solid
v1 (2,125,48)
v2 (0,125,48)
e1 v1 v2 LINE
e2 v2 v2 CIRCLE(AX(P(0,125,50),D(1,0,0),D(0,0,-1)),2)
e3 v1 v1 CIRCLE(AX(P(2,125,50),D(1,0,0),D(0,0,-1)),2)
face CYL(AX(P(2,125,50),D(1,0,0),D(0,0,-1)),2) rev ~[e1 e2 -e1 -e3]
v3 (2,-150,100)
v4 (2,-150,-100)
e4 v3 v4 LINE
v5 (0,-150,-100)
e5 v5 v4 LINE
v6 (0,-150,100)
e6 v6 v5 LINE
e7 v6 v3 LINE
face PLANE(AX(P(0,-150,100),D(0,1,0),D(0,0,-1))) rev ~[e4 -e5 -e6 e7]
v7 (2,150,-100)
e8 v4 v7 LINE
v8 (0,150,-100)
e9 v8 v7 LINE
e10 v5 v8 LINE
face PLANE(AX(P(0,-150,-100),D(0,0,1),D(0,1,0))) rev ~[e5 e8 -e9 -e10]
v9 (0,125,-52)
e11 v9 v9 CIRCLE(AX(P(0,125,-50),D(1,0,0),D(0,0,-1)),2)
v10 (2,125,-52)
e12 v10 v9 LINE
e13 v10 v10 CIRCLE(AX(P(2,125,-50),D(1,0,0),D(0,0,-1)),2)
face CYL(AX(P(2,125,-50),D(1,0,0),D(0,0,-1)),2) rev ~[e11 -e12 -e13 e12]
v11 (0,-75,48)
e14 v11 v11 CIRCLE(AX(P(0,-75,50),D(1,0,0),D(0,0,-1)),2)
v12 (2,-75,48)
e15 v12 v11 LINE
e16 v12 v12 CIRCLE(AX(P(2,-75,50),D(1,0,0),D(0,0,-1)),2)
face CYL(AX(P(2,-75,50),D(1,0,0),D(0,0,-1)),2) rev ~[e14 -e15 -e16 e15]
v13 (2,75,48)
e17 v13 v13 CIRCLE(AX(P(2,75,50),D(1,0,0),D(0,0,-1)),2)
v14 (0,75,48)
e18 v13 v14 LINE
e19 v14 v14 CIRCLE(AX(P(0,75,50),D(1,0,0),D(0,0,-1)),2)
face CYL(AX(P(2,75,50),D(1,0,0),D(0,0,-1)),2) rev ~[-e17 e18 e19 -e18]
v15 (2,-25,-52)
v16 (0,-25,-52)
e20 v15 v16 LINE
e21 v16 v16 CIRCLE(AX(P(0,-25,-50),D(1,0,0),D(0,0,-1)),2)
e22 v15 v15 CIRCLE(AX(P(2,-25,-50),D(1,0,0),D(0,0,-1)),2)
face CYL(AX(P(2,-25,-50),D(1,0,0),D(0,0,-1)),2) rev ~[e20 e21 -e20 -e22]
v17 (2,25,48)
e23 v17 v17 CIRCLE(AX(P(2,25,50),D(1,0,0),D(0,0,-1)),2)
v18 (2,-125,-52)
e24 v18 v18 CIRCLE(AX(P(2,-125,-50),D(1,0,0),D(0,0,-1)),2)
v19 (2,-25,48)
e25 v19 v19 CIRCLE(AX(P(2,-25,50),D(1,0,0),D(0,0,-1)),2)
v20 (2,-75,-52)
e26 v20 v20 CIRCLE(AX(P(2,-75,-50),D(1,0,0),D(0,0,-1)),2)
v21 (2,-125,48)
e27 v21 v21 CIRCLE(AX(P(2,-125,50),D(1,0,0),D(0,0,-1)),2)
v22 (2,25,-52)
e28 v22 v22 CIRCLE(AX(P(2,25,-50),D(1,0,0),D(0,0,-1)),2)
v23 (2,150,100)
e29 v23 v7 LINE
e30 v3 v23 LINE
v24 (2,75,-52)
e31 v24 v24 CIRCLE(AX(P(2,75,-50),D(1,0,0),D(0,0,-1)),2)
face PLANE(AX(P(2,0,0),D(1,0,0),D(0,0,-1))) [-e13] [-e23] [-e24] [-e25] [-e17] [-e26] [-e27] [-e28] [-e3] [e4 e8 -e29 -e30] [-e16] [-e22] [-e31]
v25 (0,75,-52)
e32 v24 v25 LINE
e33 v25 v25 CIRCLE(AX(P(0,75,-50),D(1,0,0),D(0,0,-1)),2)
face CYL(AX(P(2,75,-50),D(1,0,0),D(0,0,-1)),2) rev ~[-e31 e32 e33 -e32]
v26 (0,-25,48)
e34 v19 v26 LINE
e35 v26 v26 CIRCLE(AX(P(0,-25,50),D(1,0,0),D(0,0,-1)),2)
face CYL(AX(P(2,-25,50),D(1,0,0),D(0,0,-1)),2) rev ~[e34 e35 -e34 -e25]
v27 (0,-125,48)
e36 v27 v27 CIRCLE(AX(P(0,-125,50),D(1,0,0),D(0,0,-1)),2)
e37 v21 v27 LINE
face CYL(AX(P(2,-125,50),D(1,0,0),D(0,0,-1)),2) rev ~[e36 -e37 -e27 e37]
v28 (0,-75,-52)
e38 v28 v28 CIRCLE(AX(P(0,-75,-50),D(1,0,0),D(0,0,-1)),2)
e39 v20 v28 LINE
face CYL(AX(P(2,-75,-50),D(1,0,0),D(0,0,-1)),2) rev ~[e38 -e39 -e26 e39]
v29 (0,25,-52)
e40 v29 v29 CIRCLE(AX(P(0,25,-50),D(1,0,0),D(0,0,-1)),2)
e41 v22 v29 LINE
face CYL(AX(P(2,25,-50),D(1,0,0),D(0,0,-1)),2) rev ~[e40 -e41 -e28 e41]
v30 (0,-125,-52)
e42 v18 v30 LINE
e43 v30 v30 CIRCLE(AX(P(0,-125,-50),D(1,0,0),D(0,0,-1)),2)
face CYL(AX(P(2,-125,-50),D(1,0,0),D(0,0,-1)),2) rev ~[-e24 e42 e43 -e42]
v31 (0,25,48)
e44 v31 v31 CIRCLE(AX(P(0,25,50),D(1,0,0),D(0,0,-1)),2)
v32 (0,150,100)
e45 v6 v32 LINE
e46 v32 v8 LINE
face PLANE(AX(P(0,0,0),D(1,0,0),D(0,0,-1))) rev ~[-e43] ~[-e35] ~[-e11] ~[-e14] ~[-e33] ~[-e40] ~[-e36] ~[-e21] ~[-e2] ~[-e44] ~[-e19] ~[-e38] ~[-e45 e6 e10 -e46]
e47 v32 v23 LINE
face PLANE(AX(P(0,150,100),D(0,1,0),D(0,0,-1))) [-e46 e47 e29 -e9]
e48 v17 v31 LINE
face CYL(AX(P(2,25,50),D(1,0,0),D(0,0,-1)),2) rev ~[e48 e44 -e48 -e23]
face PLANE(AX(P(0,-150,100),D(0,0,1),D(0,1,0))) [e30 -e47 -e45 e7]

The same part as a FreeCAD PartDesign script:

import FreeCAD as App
import Part
import Sketcher
Q = App.Units.Quantity


def add_polygon(sketch, points):
    """Adds a closed chain of lines whose ends are joined by coincident constraints."""
    first, n = sketch.GeometryCount, len(points)
    for a, b in zip(points, points[1:] + points[:1]):
        sketch.addGeometry(Part.LineSegment(App.Vector(*a, 0), App.Vector(*b, 0)), False)
    for i in range(n):
        sketch.addConstraint(Sketcher.Constraint("Coincident", first + i, 2, first + (i + 1) % n, 1))

doc = App.newDocument("Part")
body = doc.addObject("PartDesign::Body", "Body")

sketch1 = doc.addObject("Sketcher::SketchObject", "Sketch")
body.addObject(sketch1)
sketch1.AttachmentSupport = (doc.YZ_Plane, [""])
sketch1.MapMode = "FlatFace"
add_polygon(sketch1, [(150, 100), (-150, 100), (-150, -100), (150, -100)])
sketch1.addConstraint(Sketcher.Constraint("Horizontal", 0))
sketch1.addConstraint(Sketcher.Constraint("Vertical", 1))
sketch1.addConstraint(Sketcher.Constraint("Horizontal", 2))
sketch1.addConstraint(Sketcher.Constraint("Vertical", 3))
sketch1.addConstraint(Sketcher.Constraint("Symmetric", 0, 2, 2, 2, -1, 1))
sketch1.addConstraint(Sketcher.Constraint("DistanceX", 0, 2, 0, 1, Q("300 mm")))
sketch1.addConstraint(Sketcher.Constraint("DistanceY", 1, 2, 1, 1, Q("200 mm")))
pad1 = doc.addObject("PartDesign::Pad", "Pad")
body.addObject(pad1)
pad1.Profile = sketch1
pad1.Length = 2

sketch2 = doc.addObject("Sketcher::SketchObject", "Sketch001")
body.addObject(sketch2)
sketch2.AttachmentSupport = (doc.YZ_Plane, [""])
sketch2.MapMode = "FlatFace"
sketch2.AttachmentOffset = App.Placement(App.Vector(0, 0, 2), App.Rotation())
sketch2.addGeometry(Part.Circle(App.Vector(125, 50, 0), App.Vector(0, 0, 1), 2), False)
sketch2.addGeometry(Part.Circle(App.Vector(125, -50, 0), App.Vector(0, 0, 1), 2), False)
sketch2.addGeometry(Part.Circle(App.Vector(-125, -50, 0), App.Vector(0, 0, 1), 2), False)
sketch2.addGeometry(Part.Circle(App.Vector(-125, 50, 0), App.Vector(0, 0, 1), 2), False)
sketch2.addGeometry(Part.Circle(App.Vector(75, 50, 0), App.Vector(0, 0, 1), 2), False)
sketch2.addGeometry(Part.Circle(App.Vector(25, 50, 0), App.Vector(0, 0, 1), 2), False)
sketch2.addGeometry(Part.Circle(App.Vector(25, -50, 0), App.Vector(0, 0, 1), 2), False)
sketch2.addGeometry(Part.Circle(App.Vector(75, -50, 0), App.Vector(0, 0, 1), 2), False)
sketch2.addGeometry(Part.Circle(App.Vector(-25, 50, 0), App.Vector(0, 0, 1), 2), False)
sketch2.addGeometry(Part.Circle(App.Vector(-25, -50, 0), App.Vector(0, 0, 1), 2), False)
sketch2.addGeometry(Part.Circle(App.Vector(-75, -50, 0), App.Vector(0, 0, 1), 2), False)
sketch2.addGeometry(Part.Circle(App.Vector(-75, 50, 0), App.Vector(0, 0, 1), 2), False)
sketch2.addConstraint(Sketcher.Constraint("Equal", 0, 1))
sketch2.addConstraint(Sketcher.Constraint("Equal", 1, 2))
sketch2.addConstraint(Sketcher.Constraint("Equal", 2, 3))
sketch2.addConstraint(Sketcher.Constraint("Equal", 3, 4))
sketch2.addConstraint(Sketcher.Constraint("Equal", 4, 5))
sketch2.addConstraint(Sketcher.Constraint("Equal", 5, 6))
sketch2.addConstraint(Sketcher.Constraint("Equal", 6, 7))
sketch2.addConstraint(Sketcher.Constraint("Equal", 7, 8))
sketch2.addConstraint(Sketcher.Constraint("Equal", 8, 9))
sketch2.addConstraint(Sketcher.Constraint("Equal", 9, 10))
sketch2.addConstraint(Sketcher.Constraint("Equal", 10, 11))
sketch2.addConstraint(Sketcher.Constraint("Symmetric", 0, 3, 2, 3, -1, 1))
sketch2.addConstraint(Sketcher.Constraint("Symmetric", 1, 3, 3, 3, -1, 1))
sketch2.addConstraint(Sketcher.Constraint("Symmetric", 6, 3, 8, 3, -1, 1))
sketch2.addConstraint(Sketcher.Constraint("Symmetric", 5, 3, 9, 3, -1, 1))
sketch2.addConstraint(Sketcher.Constraint("Symmetric", 4, 3, 10, 3, -1, 1))
sketch2.addConstraint(Sketcher.Constraint("Symmetric", 7, 3, 11, 3, -1, 1))
sketch2.addConstraint(Sketcher.Constraint("Symmetric", 1, 3, 2, 3, -2))
sketch2.addConstraint(Sketcher.Constraint("Symmetric", 5, 3, 8, 3, -2))
sketch2.addConstraint(Sketcher.Constraint("Symmetric", 7, 3, 10, 3, -2))
sketch2.addConstraint(Sketcher.Constraint("Horizontal", 3, 3, 4, 3))
sketch2.addConstraint(Sketcher.Constraint("Horizontal", 4, 3, 5, 3))
sketch2.addConstraint(Sketcher.Constraint("Diameter", 0, Q("4 mm")))
sketch2.addConstraint(Sketcher.Constraint("DistanceX", -1, 1, 0, 3, Q("125 mm")))
sketch2.addConstraint(Sketcher.Constraint("DistanceY", -1, 1, 0, 3, Q("50 mm")))
sketch2.addConstraint(Sketcher.Constraint("DistanceX", -1, 1, 4, 3, Q("75 mm")))
sketch2.addConstraint(Sketcher.Constraint("DistanceX", -1, 1, 5, 3, Q("25 mm")))
pocket1 = doc.addObject("PartDesign::Pocket", "Pocket")
body.addObject(pocket1)
pocket1.Profile = sketch2
pocket1.Length = 2

doc.recompute()
